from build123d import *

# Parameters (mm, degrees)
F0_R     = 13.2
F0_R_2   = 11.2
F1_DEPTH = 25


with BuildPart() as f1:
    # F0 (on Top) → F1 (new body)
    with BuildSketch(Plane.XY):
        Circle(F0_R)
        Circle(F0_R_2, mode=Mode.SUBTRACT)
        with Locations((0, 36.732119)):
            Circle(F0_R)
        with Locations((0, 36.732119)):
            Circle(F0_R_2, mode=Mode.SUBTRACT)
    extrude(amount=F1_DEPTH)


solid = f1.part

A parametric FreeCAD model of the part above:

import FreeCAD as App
import Part
import Sketcher

V = App.Vector
Q = App.Units.Quantity

doc = App.newDocument("Part")
body = doc.addObject("PartDesign::Body", "Body")
body.AllowCompound = True

# Sketch on XY plane
sketch1 = body.newObject("Sketcher::SketchObject", "Sketch")
sketch1.AttachmentSupport = (doc.getObject("XY_Plane"), [""])
sketch1.MapMode = "FlatFace"
sketch1.addGeometry(Part.Circle(V(0, 0, 0), V(0, 0, 1), 13), False)
sketch1.addGeometry(Part.Circle(V(0, 0, 0), V(0, 0, 1), 11), False)
sketch1.addGeometry(Part.Circle(V(0, 37, 0), V(0, 0, 1), 13), False)
sketch1.addGeometry(Part.Circle(V(0, 37, 0), V(0, 0, 1), 11), False)
sketch1.addConstraint(Sketcher.Constraint("Coincident", 0, 3, -1, 1))
sketch1.addConstraint(Sketcher.Constraint("Coincident", 1, 3, -1, 1))
sketch1.addConstraint(Sketcher.Constraint("Coincident", 3, 3, 2, 3))
sketch1.addConstraint(Sketcher.Constraint("Equal", 0, 2))
sketch1.addConstraint(Sketcher.Constraint("Equal", 1, 3))
sketch1.addConstraint(Sketcher.Constraint("PointOnObject", 2, 3, -2))
sketch1.addConstraint(Sketcher.Constraint("Diameter", 0, Q("26.4 mm")))
sketch1.addConstraint(Sketcher.Constraint("Diameter", 1, Q("22.4 mm")))
sketch1.addConstraint(Sketcher.Constraint("DistanceY", -1, 1, 2, 3, Q("36.732119 mm")))
pad1 = body.newObject("PartDesign::Pad", "Pad")
pad1.Profile = sketch1
pad1.Length = 25

doc.recompute()
